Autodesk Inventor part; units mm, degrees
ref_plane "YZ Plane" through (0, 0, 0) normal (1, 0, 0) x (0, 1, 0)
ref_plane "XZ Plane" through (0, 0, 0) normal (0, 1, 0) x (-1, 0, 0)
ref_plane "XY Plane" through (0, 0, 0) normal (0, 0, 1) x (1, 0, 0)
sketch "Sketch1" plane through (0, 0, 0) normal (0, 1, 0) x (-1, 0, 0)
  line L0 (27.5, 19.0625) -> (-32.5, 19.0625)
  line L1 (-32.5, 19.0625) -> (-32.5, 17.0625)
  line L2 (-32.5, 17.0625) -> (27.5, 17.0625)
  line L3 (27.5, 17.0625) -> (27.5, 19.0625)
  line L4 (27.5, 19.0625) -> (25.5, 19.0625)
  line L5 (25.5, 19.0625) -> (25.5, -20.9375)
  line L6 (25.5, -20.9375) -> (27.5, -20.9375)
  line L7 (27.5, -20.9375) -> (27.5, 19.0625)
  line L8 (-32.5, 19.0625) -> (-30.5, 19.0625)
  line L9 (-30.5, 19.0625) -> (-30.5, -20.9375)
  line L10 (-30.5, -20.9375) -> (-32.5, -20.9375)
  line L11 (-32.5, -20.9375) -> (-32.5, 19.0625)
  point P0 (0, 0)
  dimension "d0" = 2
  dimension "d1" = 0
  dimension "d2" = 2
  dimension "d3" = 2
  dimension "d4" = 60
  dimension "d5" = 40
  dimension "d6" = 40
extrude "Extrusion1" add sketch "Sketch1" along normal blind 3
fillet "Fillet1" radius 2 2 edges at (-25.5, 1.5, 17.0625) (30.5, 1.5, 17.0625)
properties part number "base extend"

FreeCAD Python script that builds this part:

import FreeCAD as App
import Part
import Sketcher
Q = App.Units.Quantity


def edges_at(feature, points):
    """Names of the edges that pass closest to the given points."""
    edges = feature.Shape.Edges
    near = lambda p: min(range(len(edges)), key=lambda i: edges[i].distToShape(Part.Vertex(*p))[0])
    return sorted({f"Edge{near(p) + 1}" for p in points})

doc = App.newDocument("Part")
body = doc.addObject("PartDesign::Body", "Body")

sketch1 = body.newObject("Sketcher::SketchObject", "Sketch")
sketch1.AttachmentSupport = (doc.getObject("XZ_Plane"), [""])
sketch1.MapMode = "FlatFace"
sketch1.addGeometry([
    Part.LineSegment(App.Vector(-27.5, 19.0625, 0), App.Vector(32.5, 19.0625, 0)),
    Part.LineSegment(App.Vector(32.5, 19.0625, 0), App.Vector(32.5, -20.9375, 0)),
    Part.LineSegment(App.Vector(32.5, -20.9375, 0), App.Vector(30.5, -20.9375, 0)),
    Part.LineSegment(App.Vector(30.5, -20.9375, 0), App.Vector(30.5, 17.0625, 0)),
    Part.LineSegment(App.Vector(30.5, 17.0625, 0), App.Vector(-25.5, 17.0625, 0)),
    Part.LineSegment(App.Vector(-25.5, 17.0625, 0), App.Vector(-25.5, -20.9375, 0)),
    Part.LineSegment(App.Vector(-25.5, -20.9375, 0), App.Vector(-27.5, -20.9375, 0)),
    Part.LineSegment(App.Vector(-27.5, -20.9375, 0), App.Vector(-27.5, 19.0625, 0)),
], False)
sketch1.addConstraint([
    Sketcher.Constraint("Coincident", 0, 2, 1, 1),
    Sketcher.Constraint("Coincident", 1, 2, 2, 1),
    Sketcher.Constraint("Coincident", 2, 2, 3, 1),
    Sketcher.Constraint("Coincident", 3, 2, 4, 1),
    Sketcher.Constraint("Coincident", 4, 2, 5, 1),
    Sketcher.Constraint("Coincident", 5, 2, 6, 1),
    Sketcher.Constraint("Coincident", 6, 2, 7, 1),
    Sketcher.Constraint("Coincident", 7, 2, 0, 1),
    Sketcher.Constraint("Horizontal", 0),
    Sketcher.Constraint("Vertical", 1),
    Sketcher.Constraint("Horizontal", 2),
    Sketcher.Constraint("Vertical", 3),
    Sketcher.Constraint("Horizontal", 4),
    Sketcher.Constraint("Vertical", 5),
    Sketcher.Constraint("Horizontal", 6),
    Sketcher.Constraint("Vertical", 7),
    Sketcher.Constraint("Horizontal", 2, 2, 5, 2),
    Sketcher.Constraint("Equal", 2, 6),
    Sketcher.Constraint("DistanceX", 0, 1, 0, 2, Q("60 mm")),
    Sketcher.Constraint("DistanceX", 2, 2, 2, 1, Q("2 mm")),
    Sketcher.Constraint("DistanceY", 1, 2, 1, 1, Q("40 mm")),
    Sketcher.Constraint("DistanceY", 3, 2, 0, 2, Q("2 mm")),
    Sketcher.Constraint("DistanceX", -1, 1, 0, 2, Q("32.5 mm")),
    Sketcher.Constraint("DistanceY", -1, 1, 0, 2, Q("19.0625 mm")),
])
pad1 = body.newObject("PartDesign::Pad", "Pad")
pad1.Profile = sketch1
pad1.Length = 3
pad1.Reversed = True
doc.recompute()

fillet = body.newObject("PartDesign::Fillet", "Fillet")
fillet.Base = (pad1, edges_at(pad1, [(-25.5, 1.5, 17.062), (30.5, 1.5, 17.062)]))
fillet.Radius = 2

doc.recompute()
